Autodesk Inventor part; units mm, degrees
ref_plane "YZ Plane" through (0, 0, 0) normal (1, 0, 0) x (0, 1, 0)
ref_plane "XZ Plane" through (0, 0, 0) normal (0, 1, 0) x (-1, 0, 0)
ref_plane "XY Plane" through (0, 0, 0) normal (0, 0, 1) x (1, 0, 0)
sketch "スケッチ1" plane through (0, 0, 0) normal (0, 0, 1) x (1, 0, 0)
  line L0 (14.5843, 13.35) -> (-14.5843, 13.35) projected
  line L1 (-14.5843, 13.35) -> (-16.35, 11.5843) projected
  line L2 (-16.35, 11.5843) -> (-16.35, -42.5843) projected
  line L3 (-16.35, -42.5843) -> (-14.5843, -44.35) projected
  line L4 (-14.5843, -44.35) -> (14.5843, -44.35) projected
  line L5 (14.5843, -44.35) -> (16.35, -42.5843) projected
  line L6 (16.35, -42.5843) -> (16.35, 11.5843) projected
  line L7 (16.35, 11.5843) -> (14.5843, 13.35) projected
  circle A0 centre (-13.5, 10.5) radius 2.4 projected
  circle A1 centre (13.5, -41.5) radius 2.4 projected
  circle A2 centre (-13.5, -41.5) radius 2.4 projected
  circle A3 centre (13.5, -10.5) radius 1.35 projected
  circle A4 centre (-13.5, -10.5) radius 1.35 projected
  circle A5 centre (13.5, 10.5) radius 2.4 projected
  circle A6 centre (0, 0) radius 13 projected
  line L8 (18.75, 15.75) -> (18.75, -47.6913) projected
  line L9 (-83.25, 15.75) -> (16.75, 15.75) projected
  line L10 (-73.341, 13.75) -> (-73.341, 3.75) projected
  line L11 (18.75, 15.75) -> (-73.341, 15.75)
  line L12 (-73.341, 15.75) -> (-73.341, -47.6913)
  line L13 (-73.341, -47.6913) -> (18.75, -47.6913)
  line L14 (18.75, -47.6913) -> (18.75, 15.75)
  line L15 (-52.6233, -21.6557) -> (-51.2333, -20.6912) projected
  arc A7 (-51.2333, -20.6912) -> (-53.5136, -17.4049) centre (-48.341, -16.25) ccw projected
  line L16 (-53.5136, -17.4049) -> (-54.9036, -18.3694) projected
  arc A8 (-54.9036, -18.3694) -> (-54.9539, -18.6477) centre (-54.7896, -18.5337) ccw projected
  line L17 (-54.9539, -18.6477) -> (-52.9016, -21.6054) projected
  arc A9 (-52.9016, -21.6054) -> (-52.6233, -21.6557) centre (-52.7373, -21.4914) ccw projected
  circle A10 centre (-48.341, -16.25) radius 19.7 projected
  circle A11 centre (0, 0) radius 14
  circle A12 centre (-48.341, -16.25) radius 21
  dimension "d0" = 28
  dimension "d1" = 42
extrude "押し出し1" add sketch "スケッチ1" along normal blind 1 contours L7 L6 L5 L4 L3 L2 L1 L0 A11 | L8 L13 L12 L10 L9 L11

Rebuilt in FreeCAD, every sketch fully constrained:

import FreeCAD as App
import Part
import Sketcher

V = App.Vector
Q = App.Units.Quantity

doc = App.newDocument("Part")
body = doc.addObject("PartDesign::Body", "Body")

# Sketch on XY plane
sketch1 = body.newObject("Sketcher::SketchObject", "Sketch")
sketch1.AttachmentSupport = (doc.getObject("XY_Plane"), [""])
sketch1.MapMode = "FlatFace"
sketch1.addGeometry([
    Part.LineSegment(V(18.75, -47.6913, 0), V(18.75, 15.75, 0)),  # 0
    Part.LineSegment(V(18.75, 15.75, 0), V(-73.341, 15.75, 0)),  # 1
    Part.LineSegment(V(-73.341, 15.75, 0), V(-73.341, -47.6913, 0)),  # 2
    Part.LineSegment(V(-73.341, -47.6913, 0), V(18.75, -47.6913, 0)),  # 3
    Part.Circle(V(0, 0, 0), V(0, 0, 1), 14),  # 4
    Part.Circle(V(-13.5, -41.5, 0), V(0, 0, 1), 2.4),  # 5
    Part.Circle(V(13.5, -41.5, 0), V(0, 0, 1), 2.4),  # 6
    Part.Circle(V(-13.5, -10.5, 0), V(0, 0, 1), 1.35),  # 7
    Part.Circle(V(13.5, -10.5, 0), V(0, 0, 1), 1.35),  # 8
    Part.Circle(V(-13.5, 10.5, 0), V(0, 0, 1), 2.4),  # 9
    Part.Circle(V(13.5, 10.5, 0), V(0, 0, 1), 2.4),  # 10
    Part.Circle(V(-48.341, -16.25, 0), V(0, 0, 1), 21),  # 11
], False)
sketch1.addConstraint([
    Sketcher.Constraint("Coincident", 0, 2, 1, 1),
    Sketcher.Constraint("Coincident", 1, 2, 2, 1),
    Sketcher.Constraint("Coincident", 2, 2, 3, 1),
    Sketcher.Constraint("Coincident", 3, 2, 0, 1),
    Sketcher.Constraint("Vertical", 0),
    Sketcher.Constraint("Horizontal", 1),
    Sketcher.Constraint("Vertical", 2),
    Sketcher.Constraint("Horizontal", 3),
    Sketcher.Constraint("Coincident", 4, 3, -1, 1),
    Sketcher.Constraint("Equal", 5, 6),
    Sketcher.Constraint("Equal", 7, 8),
    Sketcher.Constraint("Equal", 6, 9),
    Sketcher.Constraint("Equal", 9, 10),
    Sketcher.Constraint("Symmetric", 8, 3, 9, 3, -1, 1),
    Sketcher.Constraint("Symmetric", 7, 3, 10, 3, -1, 1),
    Sketcher.Constraint("Symmetric", 5, 3, 6, 3, -2),
    Sketcher.Constraint("Symmetric", 7, 3, 8, 3, -2),
    Sketcher.Constraint("Vertical", 5, 3, 7, 3),
    Sketcher.Constraint("Diameter", 4, Q("28 mm")),
    Sketcher.Constraint("Diameter", 11, Q("42 mm")),
    Sketcher.Constraint("Diameter", 5, Q("4.8 mm")),
    Sketcher.Constraint("Diameter", 7, Q("2.7 mm")),
    Sketcher.Constraint("DistanceX", 5, 3, 6, 3, Q("27 mm")),
    Sketcher.Constraint("DistanceY", 5, 3, 7, 3, Q("31 mm")),
    Sketcher.Constraint("DistanceY", 7, 3, 9, 3, Q("21 mm")),
    Sketcher.Constraint("DistanceX", 1, 2, 11, 3, Q("25 mm")),
    Sketcher.Constraint("DistanceY", 11, 3, 1, 2, Q("32 mm")),
    Sketcher.Constraint("DistanceX", 1, 2, 1, 1, Q("92.091 mm")),
    Sketcher.Constraint("DistanceY", 11, 3, -1, 1, Q("16.25 mm")),
    Sketcher.Constraint("DistanceX", -1, 1, 0, 2, Q("18.75 mm")),
    Sketcher.Constraint("DistanceY", 0, 1, 0, 2, Q("63.4413 mm")),
])
pad1 = body.newObject("PartDesign::Pad", "Pad")
pad1.Profile = sketch1
pad1.Length = 1

doc.recompute()
